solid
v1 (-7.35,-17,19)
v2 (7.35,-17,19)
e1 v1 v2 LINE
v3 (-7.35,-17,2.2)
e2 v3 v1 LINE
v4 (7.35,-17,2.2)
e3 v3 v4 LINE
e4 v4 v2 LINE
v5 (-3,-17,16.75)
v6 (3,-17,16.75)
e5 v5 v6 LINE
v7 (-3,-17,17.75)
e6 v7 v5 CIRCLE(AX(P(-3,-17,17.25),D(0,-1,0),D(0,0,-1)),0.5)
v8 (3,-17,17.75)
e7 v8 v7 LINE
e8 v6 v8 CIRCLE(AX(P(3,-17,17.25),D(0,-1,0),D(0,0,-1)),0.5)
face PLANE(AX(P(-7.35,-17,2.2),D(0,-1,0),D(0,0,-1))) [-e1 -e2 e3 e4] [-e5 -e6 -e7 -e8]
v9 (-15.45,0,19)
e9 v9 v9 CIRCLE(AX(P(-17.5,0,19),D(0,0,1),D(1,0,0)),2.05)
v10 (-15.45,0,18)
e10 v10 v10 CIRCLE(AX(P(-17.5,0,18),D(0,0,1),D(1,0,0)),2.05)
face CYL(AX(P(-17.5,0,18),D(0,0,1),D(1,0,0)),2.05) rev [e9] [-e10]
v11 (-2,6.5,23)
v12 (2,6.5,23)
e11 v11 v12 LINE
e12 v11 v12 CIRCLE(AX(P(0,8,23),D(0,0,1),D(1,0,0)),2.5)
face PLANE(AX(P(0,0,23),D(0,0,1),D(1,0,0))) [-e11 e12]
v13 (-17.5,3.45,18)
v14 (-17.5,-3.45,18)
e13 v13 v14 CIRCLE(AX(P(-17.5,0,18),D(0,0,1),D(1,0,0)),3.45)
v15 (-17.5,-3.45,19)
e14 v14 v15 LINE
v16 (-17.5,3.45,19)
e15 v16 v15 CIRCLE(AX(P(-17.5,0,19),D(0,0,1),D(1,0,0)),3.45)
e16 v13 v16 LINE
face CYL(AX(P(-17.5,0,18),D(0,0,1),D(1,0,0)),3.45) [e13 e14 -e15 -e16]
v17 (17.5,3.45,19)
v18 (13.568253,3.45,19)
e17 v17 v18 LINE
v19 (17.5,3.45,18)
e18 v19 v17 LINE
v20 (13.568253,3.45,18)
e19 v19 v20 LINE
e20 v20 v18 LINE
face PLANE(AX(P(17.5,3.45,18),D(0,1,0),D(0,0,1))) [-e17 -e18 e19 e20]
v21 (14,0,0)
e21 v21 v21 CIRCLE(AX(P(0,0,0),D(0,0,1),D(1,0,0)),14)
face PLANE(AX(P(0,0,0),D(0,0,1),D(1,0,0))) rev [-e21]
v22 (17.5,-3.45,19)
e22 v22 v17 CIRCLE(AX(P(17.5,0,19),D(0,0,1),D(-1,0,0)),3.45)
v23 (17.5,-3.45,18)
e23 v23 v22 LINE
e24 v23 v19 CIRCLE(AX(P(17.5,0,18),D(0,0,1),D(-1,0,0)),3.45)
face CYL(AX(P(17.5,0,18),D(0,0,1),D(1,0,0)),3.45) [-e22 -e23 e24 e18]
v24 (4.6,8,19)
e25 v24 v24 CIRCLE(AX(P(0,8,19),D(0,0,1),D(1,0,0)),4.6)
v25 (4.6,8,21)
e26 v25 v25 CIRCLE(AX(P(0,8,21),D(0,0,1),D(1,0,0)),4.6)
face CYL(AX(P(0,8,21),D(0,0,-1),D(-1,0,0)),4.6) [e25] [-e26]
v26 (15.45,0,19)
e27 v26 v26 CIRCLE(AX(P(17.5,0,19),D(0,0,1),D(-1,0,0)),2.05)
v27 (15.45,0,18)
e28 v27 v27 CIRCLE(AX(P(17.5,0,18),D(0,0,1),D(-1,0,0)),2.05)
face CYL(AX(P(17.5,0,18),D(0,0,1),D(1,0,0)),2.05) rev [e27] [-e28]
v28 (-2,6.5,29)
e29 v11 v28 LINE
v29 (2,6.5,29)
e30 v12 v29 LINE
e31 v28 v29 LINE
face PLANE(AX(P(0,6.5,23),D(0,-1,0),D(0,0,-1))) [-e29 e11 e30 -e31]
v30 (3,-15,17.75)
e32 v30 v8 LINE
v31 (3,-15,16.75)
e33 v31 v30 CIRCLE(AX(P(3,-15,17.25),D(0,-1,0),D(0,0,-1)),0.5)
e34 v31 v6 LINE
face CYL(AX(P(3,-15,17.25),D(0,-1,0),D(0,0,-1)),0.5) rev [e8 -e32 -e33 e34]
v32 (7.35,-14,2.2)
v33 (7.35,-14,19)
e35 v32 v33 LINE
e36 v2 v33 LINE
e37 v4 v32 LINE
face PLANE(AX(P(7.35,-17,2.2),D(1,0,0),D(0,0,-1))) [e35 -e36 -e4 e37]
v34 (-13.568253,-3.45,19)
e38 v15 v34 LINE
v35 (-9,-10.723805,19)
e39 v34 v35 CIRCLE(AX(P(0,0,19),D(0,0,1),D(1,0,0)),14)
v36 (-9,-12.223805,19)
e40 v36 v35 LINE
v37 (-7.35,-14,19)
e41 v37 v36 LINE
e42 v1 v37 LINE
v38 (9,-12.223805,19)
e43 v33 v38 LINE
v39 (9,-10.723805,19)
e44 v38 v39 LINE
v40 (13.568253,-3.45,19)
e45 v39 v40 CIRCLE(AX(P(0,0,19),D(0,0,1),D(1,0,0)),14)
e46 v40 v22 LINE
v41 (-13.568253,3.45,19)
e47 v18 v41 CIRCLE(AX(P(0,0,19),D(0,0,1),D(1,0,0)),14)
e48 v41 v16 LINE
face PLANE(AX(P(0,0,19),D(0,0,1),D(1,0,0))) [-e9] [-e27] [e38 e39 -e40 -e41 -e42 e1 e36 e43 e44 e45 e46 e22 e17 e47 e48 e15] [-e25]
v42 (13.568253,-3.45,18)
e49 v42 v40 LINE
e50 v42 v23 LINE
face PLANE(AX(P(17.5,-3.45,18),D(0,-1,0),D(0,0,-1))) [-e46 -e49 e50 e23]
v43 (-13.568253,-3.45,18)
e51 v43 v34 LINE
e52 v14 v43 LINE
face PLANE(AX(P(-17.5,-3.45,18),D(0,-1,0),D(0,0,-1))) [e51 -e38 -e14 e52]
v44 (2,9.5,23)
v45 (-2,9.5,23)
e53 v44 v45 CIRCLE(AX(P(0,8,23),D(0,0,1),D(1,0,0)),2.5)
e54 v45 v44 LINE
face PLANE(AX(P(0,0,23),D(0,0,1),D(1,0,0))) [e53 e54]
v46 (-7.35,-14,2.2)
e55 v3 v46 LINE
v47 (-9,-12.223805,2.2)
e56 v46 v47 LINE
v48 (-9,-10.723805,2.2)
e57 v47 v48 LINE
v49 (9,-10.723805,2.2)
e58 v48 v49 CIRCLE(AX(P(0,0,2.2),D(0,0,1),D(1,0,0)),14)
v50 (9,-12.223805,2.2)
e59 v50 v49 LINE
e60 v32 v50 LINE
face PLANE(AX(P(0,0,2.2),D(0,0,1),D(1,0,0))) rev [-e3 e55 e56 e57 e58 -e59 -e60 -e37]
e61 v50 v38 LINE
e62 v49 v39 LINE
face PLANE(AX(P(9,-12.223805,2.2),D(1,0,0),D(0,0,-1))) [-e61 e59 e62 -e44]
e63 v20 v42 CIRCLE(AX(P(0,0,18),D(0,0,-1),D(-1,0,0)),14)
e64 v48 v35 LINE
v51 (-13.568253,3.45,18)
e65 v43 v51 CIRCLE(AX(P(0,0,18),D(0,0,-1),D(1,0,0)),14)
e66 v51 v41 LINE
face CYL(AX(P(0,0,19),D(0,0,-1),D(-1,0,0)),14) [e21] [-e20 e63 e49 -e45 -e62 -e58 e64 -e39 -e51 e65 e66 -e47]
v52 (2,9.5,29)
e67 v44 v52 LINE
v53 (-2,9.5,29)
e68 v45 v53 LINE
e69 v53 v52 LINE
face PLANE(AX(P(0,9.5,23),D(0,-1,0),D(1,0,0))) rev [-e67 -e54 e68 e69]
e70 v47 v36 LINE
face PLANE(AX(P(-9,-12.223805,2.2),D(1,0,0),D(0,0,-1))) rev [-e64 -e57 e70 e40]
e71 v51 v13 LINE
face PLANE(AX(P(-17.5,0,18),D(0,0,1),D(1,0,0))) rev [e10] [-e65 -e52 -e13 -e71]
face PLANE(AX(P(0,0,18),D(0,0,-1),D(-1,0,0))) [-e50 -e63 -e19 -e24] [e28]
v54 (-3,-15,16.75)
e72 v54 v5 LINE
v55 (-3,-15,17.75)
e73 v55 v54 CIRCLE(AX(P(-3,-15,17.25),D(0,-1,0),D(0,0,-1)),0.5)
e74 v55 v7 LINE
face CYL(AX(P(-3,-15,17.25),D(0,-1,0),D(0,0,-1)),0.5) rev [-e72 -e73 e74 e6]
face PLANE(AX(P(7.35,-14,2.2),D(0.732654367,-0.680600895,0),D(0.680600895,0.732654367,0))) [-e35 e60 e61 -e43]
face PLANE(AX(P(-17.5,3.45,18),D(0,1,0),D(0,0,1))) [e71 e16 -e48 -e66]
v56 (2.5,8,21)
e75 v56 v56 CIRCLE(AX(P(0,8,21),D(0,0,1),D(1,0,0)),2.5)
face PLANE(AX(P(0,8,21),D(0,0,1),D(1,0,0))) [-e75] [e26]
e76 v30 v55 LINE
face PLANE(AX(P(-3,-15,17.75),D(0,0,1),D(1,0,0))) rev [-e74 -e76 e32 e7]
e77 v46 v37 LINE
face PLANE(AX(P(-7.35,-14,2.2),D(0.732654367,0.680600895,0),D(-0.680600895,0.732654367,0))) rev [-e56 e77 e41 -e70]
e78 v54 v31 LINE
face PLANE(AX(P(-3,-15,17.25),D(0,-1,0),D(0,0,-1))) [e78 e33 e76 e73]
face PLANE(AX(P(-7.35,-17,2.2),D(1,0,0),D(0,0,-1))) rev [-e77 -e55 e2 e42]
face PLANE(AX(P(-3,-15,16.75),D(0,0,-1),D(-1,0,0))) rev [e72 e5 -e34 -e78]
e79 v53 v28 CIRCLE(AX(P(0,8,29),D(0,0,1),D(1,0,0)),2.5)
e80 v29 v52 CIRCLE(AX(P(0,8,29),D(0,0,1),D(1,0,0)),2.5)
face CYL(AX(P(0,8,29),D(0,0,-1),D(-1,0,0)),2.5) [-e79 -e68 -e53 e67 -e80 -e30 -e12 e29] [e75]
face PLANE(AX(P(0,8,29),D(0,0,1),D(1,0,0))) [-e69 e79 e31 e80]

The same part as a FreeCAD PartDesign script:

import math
import FreeCAD as App
import Part
import Sketcher
from FreeCAD import Vector

doc = App.newDocument("Part")
body = doc.addObject("PartDesign::Body", "Body")

# Sketch on XY plane
sketch1 = doc.addObject("Sketcher::SketchObject", "Sketch")
body.addObject(sketch1)
sketch1.AttachmentSupport = (doc.XY_Plane, [""])
sketch1.MapMode = "FlatFace"
sketch1.addGeometry(Part.Circle(Vector(0, 0, 0), Vector(0, 0, 1), 14), False)
sketch1.addConstraint([
    Sketcher.Constraint("Coincident", 0, 3, -1, 1),
    Sketcher.Constraint("Diameter", 0, 28.0),
])
pad1 = doc.addObject("PartDesign::Pad", "Pad")
body.addObject(pad1)
pad1.Profile = sketch1
pad1.Length = 19

# Sketch on XY plane
sketch2 = doc.addObject("Sketcher::SketchObject", "Sketch001")
body.addObject(sketch2)
sketch2.AttachmentSupport = (doc.XY_Plane, [""])
sketch2.MapMode = "FlatFace"
sketch2.AttachmentOffset = App.Placement(Vector(0, 0, 2.2), App.Rotation())
sketch2.addGeometry([
    Part.LineSegment(Vector(-7.3, -17, 0), Vector(7.3, -17, 0)),  # 0
    Part.LineSegment(Vector(7.3, -17, 0), Vector(7.3, -14, 0)),  # 1
    Part.LineSegment(Vector(7.3, -14, 0), Vector(9, -12.2, 0)),  # 2
    Part.LineSegment(Vector(9, -12.2, 0), Vector(9, -10.7, 0)),  # 3
    Part.ArcOfCircle(Part.Circle(Vector(0, 0, 0), Vector(0, 0, 1), 14), math.radians(-130), math.radians(-50)),  # 4
    Part.LineSegment(Vector(-9, -10.7, 0), Vector(-9, -12.2, 0)),  # 5
    Part.LineSegment(Vector(-9, -12.2, 0), Vector(-7.3, -14, 0)),  # 6
    Part.LineSegment(Vector(-7.3, -14, 0), Vector(-7.3, -17, 0)),  # 7
], False)
sketch2.addConstraint([
    Sketcher.Constraint("Coincident", 0, 2, 1, 1),
    Sketcher.Constraint("Coincident", 1, 2, 2, 1),
    Sketcher.Constraint("Coincident", 2, 2, 3, 1),
    Sketcher.Constraint("Coincident", 3, 2, 4, 2),
    Sketcher.Constraint("Coincident", 4, 1, 5, 1),
    Sketcher.Constraint("Coincident", 5, 2, 6, 1),
    Sketcher.Constraint("Coincident", 6, 2, 7, 1),
    Sketcher.Constraint("Coincident", 7, 2, 0, 1),
    Sketcher.Constraint("Horizontal", 0),
    Sketcher.Constraint("Vertical", 1),
    Sketcher.Constraint("Vertical", 3),
    Sketcher.Constraint("Vertical", 5),
    Sketcher.Constraint("Vertical", 7),
    Sketcher.Constraint("Coincident", 4, 3, -1, 1),
    Sketcher.Constraint("Symmetric", 2, 2, 5, 2, -2),
    Sketcher.Constraint("Symmetric", 1, 2, 6, 2, -2),
    Sketcher.Constraint("Radius", 4, 14.0),
    Sketcher.Constraint("DistanceY", 1, 1, 1, 2, 3.0),
    Sketcher.Constraint("DistanceX", 0, 1, 0, 2, 14.7),
    Sketcher.Constraint("DistanceY", 3, 1, 3, 2, 1.5),
    Sketcher.Constraint("DistanceY", 0, 2, -1, 1, 17.0),
    Sketcher.Constraint("DistanceX", -1, 1, 2, 2, 9.0),
])
pad2 = doc.addObject("PartDesign::Pad", "Pad001")
body.addObject(pad2)
pad2.Profile = sketch2
pad2.Length = 16.8

# Sketch on XZ plane
sketch3 = doc.addObject("Sketcher::SketchObject", "Sketch002")
body.addObject(sketch3)
sketch3.AttachmentSupport = (doc.XZ_Plane, [""])
sketch3.MapMode = "FlatFace"
sketch3.AttachmentOffset = App.Placement(Vector(0, 0, 17), App.Rotation())
sketch3.addGeometry([
    Part.LineSegment(Vector(3, 17.8, 0), Vector(-3, 17.8, 0)),
    Part.ArcOfCircle(Part.Circle(Vector(-3, 17.2, 0), Vector(0, 0, 1), 0.5), math.radians(90), math.radians(270)),
    Part.LineSegment(Vector(-3, 16.8, 0), Vector(3, 16.8, 0)),
    Part.ArcOfCircle(Part.Circle(Vector(3, 17.2, 0), Vector(0, 0, 1), 0.5), math.radians(-90), math.radians(90)),
], False)
sketch3.addConstraint([
    Sketcher.Constraint("Tangent", 0, 2, 1, 1),
    Sketcher.Constraint("Tangent", 1, 2, 2, 1),
    Sketcher.Constraint("Tangent", 2, 2, 3, 1),
    Sketcher.Constraint("Tangent", 3, 2, 0, 1),
    Sketcher.Constraint("Horizontal", 0),
    Sketcher.Constraint("Horizontal", 2),
    Sketcher.Constraint("Radius", 1, 0.5),
    Sketcher.Constraint("DistanceX", 0, 2, 0, 1, 6.0),
    Sketcher.Constraint("DistanceX", 1, 3, -1, 1, 3.0),
    Sketcher.Constraint("DistanceY", -1, 1, 1, 3, 17.25),
])
pocket1 = doc.addObject("PartDesign::Pocket", "Pocket")
body.addObject(pocket1)
pocket1.Profile = sketch3
pocket1.Length = 2

# Sketch on XY plane
sketch4 = doc.addObject("Sketcher::SketchObject", "Sketch003")
body.addObject(sketch4)
sketch4.AttachmentSupport = (doc.XY_Plane, [""])
sketch4.MapMode = "FlatFace"
sketch4.AttachmentOffset = App.Placement(Vector(0, 0, 18), App.Rotation())
sketch4.addGeometry([
    Part.LineSegment(Vector(-13.6, 3.5, 0), Vector(-17.5, 3.5, 0)),  # 0
    Part.ArcOfCircle(Part.Circle(Vector(-17.5, 0, 0), Vector(0, 0, 1), 3.5), math.radians(90), math.radians(270)),  # 1
    Part.LineSegment(Vector(-17.5, -3.5, 0), Vector(-13.6, -3.5, 0)),  # 2
    Part.ArcOfCircle(Part.Circle(Vector(0, 0, 0), Vector(0, 0, 1), 14), math.radians(166), math.radians(194)),  # 3
    Part.Circle(Vector(-17.5, 0, 0), Vector(0, 0, 1), 2),  # 4
    Part.LineSegment(Vector(13.6, -3.5, 0), Vector(17.5, -3.5, 0)),  # 5
    Part.ArcOfCircle(Part.Circle(Vector(17.5, 0, 0), Vector(0, 0, 1), 3.5), math.radians(-90), math.radians(90)),  # 6
    Part.LineSegment(Vector(17.5, 3.5, 0), Vector(13.6, 3.5, 0)),  # 7
    Part.ArcOfCircle(Part.Circle(Vector(0, 0, 0), Vector(0, 0, 1), 14), math.radians(-14), math.radians(14)),  # 8
    Part.Circle(Vector(17.5, 0, 0), Vector(0, 0, 1), 2),  # 9
], False)
sketch4.addConstraint([
    Sketcher.Constraint("Tangent", 0, 2, 1, 1),
    Sketcher.Constraint("Tangent", 1, 2, 2, 1),
    Sketcher.Constraint("Coincident", 2, 2, 3, 2),
    Sketcher.Constraint("Coincident", 3, 1, 0, 1),
    Sketcher.Constraint("Tangent", 5, 2, 6, 1),
    Sketcher.Constraint("Tangent", 6, 2, 7, 1),
    Sketcher.Constraint("Coincident", 7, 2, 8, 2),
    Sketcher.Constraint("Coincident", 8, 1, 5, 1),
    Sketcher.Constraint("Horizontal", 0),
    Sketcher.Constraint("Horizontal", 2),
    Sketcher.Constraint("Horizontal", 5),
    Sketcher.Constraint("Horizontal", 7),
    Sketcher.Constraint("Coincident", 3, 3, -1, 1),
    Sketcher.Constraint("Coincident", 8, 3, -1, 1),
    Sketcher.Constraint("Coincident", 4, 3, 1, 3),
    Sketcher.Constraint("Coincident", 9, 3, 6, 3),
    Sketcher.Constraint("Equal", 1, 6),
    Sketcher.Constraint("Equal", 3, 8),
    Sketcher.Constraint("Equal", 4, 9),
    Sketcher.Constraint("Symmetric", 1, 3, 6, 3, -1, 1),
    Sketcher.Constraint("PointOnObject", 1, 3, -1),
    Sketcher.Constraint("Radius", 3, 14.0),
    Sketcher.Constraint("Diameter", 4, 4.1),
    Sketcher.Constraint("Radius", 1, 3.45),
    Sketcher.Constraint("DistanceX", 1, 3, 6, 3, 35.0),
])
pad3 = doc.addObject("PartDesign::Pad", "Pad002")
body.addObject(pad3)
pad3.Profile = sketch4
pad3.Length = 1

# Sketch on XY plane
sketch5 = doc.addObject("Sketcher::SketchObject", "Sketch004")
body.addObject(sketch5)
sketch5.AttachmentSupport = (doc.XY_Plane, [""])
sketch5.MapMode = "FlatFace"
sketch5.AttachmentOffset = App.Placement(Vector(0, 0, 19), App.Rotation())
sketch5.addGeometry(Part.Circle(Vector(0, 8, 0), Vector(0, 0, 1), 4.6), False)
sketch5.addConstraint([
    Sketcher.Constraint("PointOnObject", 0, 3, -2),
    Sketcher.Constraint("Diameter", 0, 9.2),
    Sketcher.Constraint("DistanceY", -1, 1, 0, 3, 8.0),
])
pad4 = doc.addObject("PartDesign::Pad", "Pad003")
body.addObject(pad4)
pad4.Profile = sketch5
pad4.Length = 2

# Sketch on XY plane
sketch6 = doc.addObject("Sketcher::SketchObject", "Sketch005")
body.addObject(sketch6)
sketch6.AttachmentSupport = (doc.XY_Plane, [""])
sketch6.MapMode = "FlatFace"
sketch6.AttachmentOffset = App.Placement(Vector(0, 0, 21), App.Rotation())
sketch6.addGeometry(Part.Circle(Vector(0, 8, 0), Vector(0, 0, 1), 2.5), False)
sketch6.addConstraint([
    Sketcher.Constraint("PointOnObject", 0, 3, -2),
    Sketcher.Constraint("Diameter", 0, 5.0),
    Sketcher.Constraint("DistanceY", -1, 1, 0, 3, 8.0),
])
pad5 = doc.addObject("PartDesign::Pad", "Pad004")
body.addObject(pad5)
pad5.Profile = sketch6
pad5.Length = 8

# Sketch on XY plane
sketch7 = doc.addObject("Sketcher::SketchObject", "Sketch006")
body.addObject(sketch7)
sketch7.AttachmentSupport = (doc.XY_Plane, [""])
sketch7.MapMode = "FlatFace"
sketch7.AttachmentOffset = App.Placement(Vector(0, 0, 23), App.Rotation())
sketch7.addGeometry([
    Part.ArcOfCircle(Part.Circle(Vector(0, 8, 0), Vector(0, 0, 1), 2.5), math.radians(37), math.radians(143)),
    Part.LineSegment(Vector(-2, 9.5, 0), Vector(2, 9.5, 0)),
    Part.LineSegment(Vector(2, 6.5, 0), Vector(-2, 6.5, 0)),
    Part.ArcOfCircle(Part.Circle(Vector(0, 8, 0), Vector(0, 0, 1), 2.5), math.radians(-143), math.radians(-37)),
], False)
sketch7.addConstraint([
    Sketcher.Constraint("Coincident", 0, 1, 1, 2),
    Sketcher.Constraint("Coincident", 1, 1, 0, 2),
    Sketcher.Constraint("Coincident", 2, 1, 3, 2),
    Sketcher.Constraint("Coincident", 3, 1, 2, 2),
    Sketcher.Constraint("Horizontal", 1),
    Sketcher.Constraint("Horizontal", 2),
    Sketcher.Constraint("Coincident", 3, 3, 0, 3),
    Sketcher.Constraint("Equal", 0, 3),
    Sketcher.Constraint("PointOnObject", 0, 3, -2),
    Sketcher.Constraint("Vertical", 0, 1, 2, 1),
    Sketcher.Constraint("Radius", 0, 2.5),
    Sketcher.Constraint("DistanceX", 1, 1, 1, 2, 4.0),
    Sketcher.Constraint("DistanceY", -1, 1, 0, 3, 8.0),
])
pocket2 = doc.addObject("PartDesign::Pocket", "Pocket001")
body.addObject(pocket2)
pocket2.Profile = sketch7
pocket2.Length = 6
pocket2.Reversed = True

doc.recompute()
